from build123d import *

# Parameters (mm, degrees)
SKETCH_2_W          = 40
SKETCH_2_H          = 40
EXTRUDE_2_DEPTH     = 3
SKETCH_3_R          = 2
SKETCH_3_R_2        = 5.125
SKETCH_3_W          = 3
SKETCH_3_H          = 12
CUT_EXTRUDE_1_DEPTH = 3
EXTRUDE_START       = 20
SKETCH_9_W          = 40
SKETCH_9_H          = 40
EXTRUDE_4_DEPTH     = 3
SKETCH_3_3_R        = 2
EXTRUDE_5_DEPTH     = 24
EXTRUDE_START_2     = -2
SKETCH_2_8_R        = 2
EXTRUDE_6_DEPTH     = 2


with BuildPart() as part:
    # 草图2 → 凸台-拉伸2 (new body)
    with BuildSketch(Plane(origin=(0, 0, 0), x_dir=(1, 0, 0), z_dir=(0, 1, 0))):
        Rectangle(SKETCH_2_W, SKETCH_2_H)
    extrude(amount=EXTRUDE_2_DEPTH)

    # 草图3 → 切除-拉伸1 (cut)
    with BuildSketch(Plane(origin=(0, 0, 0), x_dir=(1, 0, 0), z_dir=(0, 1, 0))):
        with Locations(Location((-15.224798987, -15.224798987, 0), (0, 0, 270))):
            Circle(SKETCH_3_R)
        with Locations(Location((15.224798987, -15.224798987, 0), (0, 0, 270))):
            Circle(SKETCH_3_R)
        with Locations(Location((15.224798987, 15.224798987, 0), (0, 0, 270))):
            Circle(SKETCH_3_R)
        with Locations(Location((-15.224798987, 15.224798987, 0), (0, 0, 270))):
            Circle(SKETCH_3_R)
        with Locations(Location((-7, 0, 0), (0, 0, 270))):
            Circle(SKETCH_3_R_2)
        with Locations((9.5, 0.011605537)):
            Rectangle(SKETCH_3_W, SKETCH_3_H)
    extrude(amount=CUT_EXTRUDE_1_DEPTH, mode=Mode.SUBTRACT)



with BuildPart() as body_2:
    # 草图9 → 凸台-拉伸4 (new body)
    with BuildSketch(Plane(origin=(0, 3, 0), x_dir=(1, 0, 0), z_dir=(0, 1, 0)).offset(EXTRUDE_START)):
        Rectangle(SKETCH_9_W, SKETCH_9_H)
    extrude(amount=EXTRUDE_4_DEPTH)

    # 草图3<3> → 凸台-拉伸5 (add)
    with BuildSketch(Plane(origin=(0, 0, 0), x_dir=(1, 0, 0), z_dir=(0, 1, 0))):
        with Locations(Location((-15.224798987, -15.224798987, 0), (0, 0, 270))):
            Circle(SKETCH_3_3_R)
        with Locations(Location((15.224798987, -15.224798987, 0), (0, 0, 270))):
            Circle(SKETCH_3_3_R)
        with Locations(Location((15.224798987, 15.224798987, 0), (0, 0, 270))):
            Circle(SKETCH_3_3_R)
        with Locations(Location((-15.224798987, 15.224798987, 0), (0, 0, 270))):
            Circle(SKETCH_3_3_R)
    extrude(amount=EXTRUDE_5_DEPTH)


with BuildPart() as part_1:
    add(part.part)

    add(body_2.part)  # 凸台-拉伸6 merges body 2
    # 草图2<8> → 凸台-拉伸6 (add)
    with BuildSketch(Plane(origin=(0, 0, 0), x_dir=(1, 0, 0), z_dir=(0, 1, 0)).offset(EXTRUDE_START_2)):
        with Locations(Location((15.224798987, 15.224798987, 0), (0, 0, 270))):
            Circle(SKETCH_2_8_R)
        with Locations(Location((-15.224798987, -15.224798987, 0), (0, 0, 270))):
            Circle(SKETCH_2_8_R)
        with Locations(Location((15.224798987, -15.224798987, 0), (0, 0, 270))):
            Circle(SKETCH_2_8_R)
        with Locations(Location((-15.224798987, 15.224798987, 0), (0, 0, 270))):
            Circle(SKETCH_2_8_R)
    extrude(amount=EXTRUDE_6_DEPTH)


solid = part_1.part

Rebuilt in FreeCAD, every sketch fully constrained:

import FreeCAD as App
import Part
import Sketcher
from FreeCAD import Vector
Q = App.Units.Quantity

doc = App.newDocument("Part")
body = doc.addObject("PartDesign::Body", "Body")

sketch1 = body.newObject("Sketcher::SketchObject", "Sketch")
sketch1.AttachmentSupport = (doc.getObject("XZ_Plane"), [""])
sketch1.MapMode = "FlatFace"
sketch1.addGeometry(Part.LineSegment(Vector(-20, -20, 0), Vector(-20, 20, 0)), False)
sketch1.addGeometry(Part.LineSegment(Vector(-20, 20, 0), Vector(20, 20, 0)), False)
sketch1.addGeometry(Part.LineSegment(Vector(20, 20, 0), Vector(20, -20, 0)), False)
sketch1.addGeometry(Part.LineSegment(Vector(20, -20, 0), Vector(-20, -20, 0)), False)
sketch1.addConstraint(Sketcher.Constraint("Coincident", 0, 2, 1, 1))
sketch1.addConstraint(Sketcher.Constraint("Coincident", 1, 2, 2, 1))
sketch1.addConstraint(Sketcher.Constraint("Coincident", 2, 2, 3, 1))
sketch1.addConstraint(Sketcher.Constraint("Coincident", 3, 2, 0, 1))
sketch1.addConstraint(Sketcher.Constraint("Vertical", 0))
sketch1.addConstraint(Sketcher.Constraint("Horizontal", 1))
sketch1.addConstraint(Sketcher.Constraint("Vertical", 2))
sketch1.addConstraint(Sketcher.Constraint("Horizontal", 3))
sketch1.addConstraint(Sketcher.Constraint("Symmetric", 0, 2, 2, 2, -1, 1))
sketch1.addConstraint(Sketcher.Constraint("Equal", 3, 0))
sketch1.addConstraint(Sketcher.Constraint("DistanceX", 1, 1, 1, 2, Q("40 mm")))
pad1 = body.newObject("PartDesign::Pad", "Pad")
pad1.Profile = sketch1
pad1.Length = 3
pad1.Reversed = True

sketch2 = body.newObject("Sketcher::SketchObject", "Sketch001")
sketch2.AttachmentSupport = (doc.getObject("XZ_Plane"), [""])
sketch2.MapMode = "FlatFace"
sketch2.addGeometry(Part.Circle(Vector(-15.224799, 15.224799, 0), Vector(0, 0, 1), 2), False)
sketch2.addGeometry(Part.Circle(Vector(15.224799, 15.224799, 0), Vector(0, 0, 1), 2), False)
sketch2.addGeometry(Part.Circle(Vector(15.224799, -15.224799, 0), Vector(0, 0, 1), 2), False)
sketch2.addGeometry(Part.Circle(Vector(-15.224799, -15.224799, 0), Vector(0, 0, 1), 2), False)
sketch2.addGeometry(Part.Circle(Vector(-7, 0, 0), Vector(0, 0, 1), 5.125), False)
sketch2.addGeometry(Part.LineSegment(Vector(8, -6.011606, 0), Vector(8, 5.988394, 0)), False)
sketch2.addGeometry(Part.LineSegment(Vector(8, 5.988394, 0), Vector(11, 5.988394, 0)), False)
sketch2.addGeometry(Part.LineSegment(Vector(11, 5.988394, 0), Vector(11, -6.011606, 0)), False)
sketch2.addGeometry(Part.LineSegment(Vector(11, -6.011606, 0), Vector(8, -6.011606, 0)), False)
sketch2.addConstraint(Sketcher.Constraint("Coincident", 5, 2, 6, 1))
sketch2.addConstraint(Sketcher.Constraint("Coincident", 6, 2, 7, 1))
sketch2.addConstraint(Sketcher.Constraint("Coincident", 7, 2, 8, 1))
sketch2.addConstraint(Sketcher.Constraint("Coincident", 8, 2, 5, 1))
sketch2.addConstraint(Sketcher.Constraint("Vertical", 5))
sketch2.addConstraint(Sketcher.Constraint("Horizontal", 6))
sketch2.addConstraint(Sketcher.Constraint("Vertical", 7))
sketch2.addConstraint(Sketcher.Constraint("Horizontal", 8))
sketch2.addConstraint(Sketcher.Constraint("Equal", 0, 1))
sketch2.addConstraint(Sketcher.Constraint("Equal", 1, 2))
sketch2.addConstraint(Sketcher.Constraint("Equal", 2, 3))
sketch2.addConstraint(Sketcher.Constraint("Symmetric", 0, 3, 2, 3, -1, 1))
sketch2.addConstraint(Sketcher.Constraint("Symmetric", 1, 3, 3, 3, -1, 1))
sketch2.addConstraint(Sketcher.Constraint("Symmetric", 0, 3, 1, 3, -2))
sketch2.addConstraint(Sketcher.Constraint("PointOnObject", 4, 3, -1))
sketch2.addConstraint(Sketcher.Constraint("Diameter", 0, Q("4 mm")))
sketch2.addConstraint(Sketcher.Constraint("Diameter", 4, Q("10.25 mm")))
sketch2.addConstraint(Sketcher.Constraint("DistanceX", 6, 1, 6, 2, Q("3 mm")))
sketch2.addConstraint(Sketcher.Constraint("DistanceY", 5, 1, 5, 2, Q("12 mm")))
sketch2.addConstraint(Sketcher.Constraint("DistanceX", 4, 3, -1, 1, Q("7 mm")))
sketch2.addConstraint(Sketcher.Constraint("DistanceX", -1, 1, 5, 2, Q("8 mm")))
sketch2.addConstraint(Sketcher.Constraint("DistanceX", 0, 3, -1, 1, Q("15.224799 mm")))
sketch2.addConstraint(Sketcher.Constraint("DistanceY", -1, 1, 0, 3, Q("15.224799 mm")))
sketch2.addConstraint(Sketcher.Constraint("DistanceY", -1, 1, 5, 2, Q("5.988394 mm")))
pocket1 = body.newObject("PartDesign::Pocket", "Pocket")
pocket1.Profile = sketch2
pocket1.Length = 3
body2 = doc.addObject("PartDesign::Body", "Body001")

sketch3 = body2.newObject("Sketcher::SketchObject", "Sketch002")
sketch3.AttachmentSupport = (doc.getObject("XZ_Plane001"), [""])
sketch3.MapMode = "FlatFace"
sketch3.AttachmentOffset = App.Placement(Vector(0, 0, -23), App.Rotation())
sketch3.addGeometry(Part.LineSegment(Vector(-20, -20, 0), Vector(-20, 20, 0)), False)
sketch3.addGeometry(Part.LineSegment(Vector(-20, 20, 0), Vector(20, 20, 0)), False)
sketch3.addGeometry(Part.LineSegment(Vector(20, 20, 0), Vector(20, -20, 0)), False)
sketch3.addGeometry(Part.LineSegment(Vector(20, -20, 0), Vector(-20, -20, 0)), False)
sketch3.addConstraint(Sketcher.Constraint("Coincident", 0, 2, 1, 1))
sketch3.addConstraint(Sketcher.Constraint("Coincident", 1, 2, 2, 1))
sketch3.addConstraint(Sketcher.Constraint("Coincident", 2, 2, 3, 1))
sketch3.addConstraint(Sketcher.Constraint("Coincident", 3, 2, 0, 1))
sketch3.addConstraint(Sketcher.Constraint("Vertical", 0))
sketch3.addConstraint(Sketcher.Constraint("Horizontal", 1))
sketch3.addConstraint(Sketcher.Constraint("Vertical", 2))
sketch3.addConstraint(Sketcher.Constraint("Horizontal", 3))
sketch3.addConstraint(Sketcher.Constraint("Symmetric", 0, 2, 2, 2, -1, 1))
sketch3.addConstraint(Sketcher.Constraint("Equal", 3, 0))
sketch3.addConstraint(Sketcher.Constraint("DistanceX", 1, 1, 1, 2, Q("40 mm")))
pad2 = body2.newObject("PartDesign::Pad", "Pad001")
pad2.Profile = sketch3
pad2.Length = 3
pad2.Reversed = True

sketch4 = body2.newObject("Sketcher::SketchObject", "Sketch003")
sketch4.AttachmentSupport = (doc.getObject("XZ_Plane001"), [""])
sketch4.MapMode = "FlatFace"
sketch4.addGeometry(Part.Circle(Vector(-15.224799, 15.224799, 0), Vector(0, 0, 1), 2), False)
sketch4.addGeometry(Part.Circle(Vector(15.224799, 15.224799, 0), Vector(0, 0, 1), 2), False)
sketch4.addGeometry(Part.Circle(Vector(15.224799, -15.224799, 0), Vector(0, 0, 1), 2), False)
sketch4.addGeometry(Part.Circle(Vector(-15.224799, -15.224799, 0), Vector(0, 0, 1), 2), False)
sketch4.addConstraint(Sketcher.Constraint("Equal", 0, 1))
sketch4.addConstraint(Sketcher.Constraint("Equal", 1, 2))
sketch4.addConstraint(Sketcher.Constraint("Equal", 2, 3))
sketch4.addConstraint(Sketcher.Constraint("Symmetric", 0, 3, 2, 3, -1, 1))
sketch4.addConstraint(Sketcher.Constraint("Symmetric", 1, 3, 3, 3, -1, 1))
sketch4.addConstraint(Sketcher.Constraint("Symmetric", 0, 3, 1, 3, -2))
sketch4.addConstraint(Sketcher.Constraint("Diameter", 0, Q("4 mm")))
sketch4.addConstraint(Sketcher.Constraint("DistanceX", 0, 3, -1, 1, Q("15.224799 mm")))
sketch4.addConstraint(Sketcher.Constraint("DistanceY", -1, 1, 0, 3, Q("15.224799 mm")))
pad3 = body2.newObject("PartDesign::Pad", "Pad002")
pad3.Profile = sketch4
pad3.Length = 24
pad3.Reversed = True
doc.recompute()

boolean = body.newObject("PartDesign::Boolean", "Boolean")
boolean.Type = "Fuse"
boolean.addObjects([body2])

sketch5 = body.newObject("Sketcher::SketchObject", "Sketch004")
sketch5.AttachmentSupport = (doc.getObject("XZ_Plane"), [""])
sketch5.MapMode = "FlatFace"
sketch5.AttachmentOffset = App.Placement(Vector(0, 0, 2), App.Rotation())
sketch5.addGeometry(Part.Circle(Vector(15.224799, -15.224799, 0), Vector(0, 0, 1), 2), False)
sketch5.addGeometry(Part.Circle(Vector(-15.224799, 15.224799, 0), Vector(0, 0, 1), 2), False)
sketch5.addGeometry(Part.Circle(Vector(15.224799, 15.224799, 0), Vector(0, 0, 1), 2), False)
sketch5.addGeometry(Part.Circle(Vector(-15.224799, -15.224799, 0), Vector(0, 0, 1), 2), False)
sketch5.addConstraint(Sketcher.Constraint("Equal", 0, 1))
sketch5.addConstraint(Sketcher.Constraint("Equal", 1, 2))
sketch5.addConstraint(Sketcher.Constraint("Equal", 2, 3))
sketch5.addConstraint(Sketcher.Constraint("Symmetric", 0, 3, 1, 3, -1, 1))
sketch5.addConstraint(Sketcher.Constraint("Symmetric", 2, 3, 3, 3, -1, 1))
sketch5.addConstraint(Sketcher.Constraint("Symmetric", 1, 3, 2, 3, -2))
sketch5.addConstraint(Sketcher.Constraint("Diameter", 0, Q("4 mm")))
sketch5.addConstraint(Sketcher.Constraint("DistanceX", -1, 1, 0, 3, Q("15.224799 mm")))
sketch5.addConstraint(Sketcher.Constraint("DistanceY", 0, 3, -1, 1, Q("15.224799 mm")))
pad4 = body.newObject("PartDesign::Pad", "Pad003")
pad4.Profile = sketch5
pad4.Length = 2
pad4.Reversed = True

doc.recompute()
